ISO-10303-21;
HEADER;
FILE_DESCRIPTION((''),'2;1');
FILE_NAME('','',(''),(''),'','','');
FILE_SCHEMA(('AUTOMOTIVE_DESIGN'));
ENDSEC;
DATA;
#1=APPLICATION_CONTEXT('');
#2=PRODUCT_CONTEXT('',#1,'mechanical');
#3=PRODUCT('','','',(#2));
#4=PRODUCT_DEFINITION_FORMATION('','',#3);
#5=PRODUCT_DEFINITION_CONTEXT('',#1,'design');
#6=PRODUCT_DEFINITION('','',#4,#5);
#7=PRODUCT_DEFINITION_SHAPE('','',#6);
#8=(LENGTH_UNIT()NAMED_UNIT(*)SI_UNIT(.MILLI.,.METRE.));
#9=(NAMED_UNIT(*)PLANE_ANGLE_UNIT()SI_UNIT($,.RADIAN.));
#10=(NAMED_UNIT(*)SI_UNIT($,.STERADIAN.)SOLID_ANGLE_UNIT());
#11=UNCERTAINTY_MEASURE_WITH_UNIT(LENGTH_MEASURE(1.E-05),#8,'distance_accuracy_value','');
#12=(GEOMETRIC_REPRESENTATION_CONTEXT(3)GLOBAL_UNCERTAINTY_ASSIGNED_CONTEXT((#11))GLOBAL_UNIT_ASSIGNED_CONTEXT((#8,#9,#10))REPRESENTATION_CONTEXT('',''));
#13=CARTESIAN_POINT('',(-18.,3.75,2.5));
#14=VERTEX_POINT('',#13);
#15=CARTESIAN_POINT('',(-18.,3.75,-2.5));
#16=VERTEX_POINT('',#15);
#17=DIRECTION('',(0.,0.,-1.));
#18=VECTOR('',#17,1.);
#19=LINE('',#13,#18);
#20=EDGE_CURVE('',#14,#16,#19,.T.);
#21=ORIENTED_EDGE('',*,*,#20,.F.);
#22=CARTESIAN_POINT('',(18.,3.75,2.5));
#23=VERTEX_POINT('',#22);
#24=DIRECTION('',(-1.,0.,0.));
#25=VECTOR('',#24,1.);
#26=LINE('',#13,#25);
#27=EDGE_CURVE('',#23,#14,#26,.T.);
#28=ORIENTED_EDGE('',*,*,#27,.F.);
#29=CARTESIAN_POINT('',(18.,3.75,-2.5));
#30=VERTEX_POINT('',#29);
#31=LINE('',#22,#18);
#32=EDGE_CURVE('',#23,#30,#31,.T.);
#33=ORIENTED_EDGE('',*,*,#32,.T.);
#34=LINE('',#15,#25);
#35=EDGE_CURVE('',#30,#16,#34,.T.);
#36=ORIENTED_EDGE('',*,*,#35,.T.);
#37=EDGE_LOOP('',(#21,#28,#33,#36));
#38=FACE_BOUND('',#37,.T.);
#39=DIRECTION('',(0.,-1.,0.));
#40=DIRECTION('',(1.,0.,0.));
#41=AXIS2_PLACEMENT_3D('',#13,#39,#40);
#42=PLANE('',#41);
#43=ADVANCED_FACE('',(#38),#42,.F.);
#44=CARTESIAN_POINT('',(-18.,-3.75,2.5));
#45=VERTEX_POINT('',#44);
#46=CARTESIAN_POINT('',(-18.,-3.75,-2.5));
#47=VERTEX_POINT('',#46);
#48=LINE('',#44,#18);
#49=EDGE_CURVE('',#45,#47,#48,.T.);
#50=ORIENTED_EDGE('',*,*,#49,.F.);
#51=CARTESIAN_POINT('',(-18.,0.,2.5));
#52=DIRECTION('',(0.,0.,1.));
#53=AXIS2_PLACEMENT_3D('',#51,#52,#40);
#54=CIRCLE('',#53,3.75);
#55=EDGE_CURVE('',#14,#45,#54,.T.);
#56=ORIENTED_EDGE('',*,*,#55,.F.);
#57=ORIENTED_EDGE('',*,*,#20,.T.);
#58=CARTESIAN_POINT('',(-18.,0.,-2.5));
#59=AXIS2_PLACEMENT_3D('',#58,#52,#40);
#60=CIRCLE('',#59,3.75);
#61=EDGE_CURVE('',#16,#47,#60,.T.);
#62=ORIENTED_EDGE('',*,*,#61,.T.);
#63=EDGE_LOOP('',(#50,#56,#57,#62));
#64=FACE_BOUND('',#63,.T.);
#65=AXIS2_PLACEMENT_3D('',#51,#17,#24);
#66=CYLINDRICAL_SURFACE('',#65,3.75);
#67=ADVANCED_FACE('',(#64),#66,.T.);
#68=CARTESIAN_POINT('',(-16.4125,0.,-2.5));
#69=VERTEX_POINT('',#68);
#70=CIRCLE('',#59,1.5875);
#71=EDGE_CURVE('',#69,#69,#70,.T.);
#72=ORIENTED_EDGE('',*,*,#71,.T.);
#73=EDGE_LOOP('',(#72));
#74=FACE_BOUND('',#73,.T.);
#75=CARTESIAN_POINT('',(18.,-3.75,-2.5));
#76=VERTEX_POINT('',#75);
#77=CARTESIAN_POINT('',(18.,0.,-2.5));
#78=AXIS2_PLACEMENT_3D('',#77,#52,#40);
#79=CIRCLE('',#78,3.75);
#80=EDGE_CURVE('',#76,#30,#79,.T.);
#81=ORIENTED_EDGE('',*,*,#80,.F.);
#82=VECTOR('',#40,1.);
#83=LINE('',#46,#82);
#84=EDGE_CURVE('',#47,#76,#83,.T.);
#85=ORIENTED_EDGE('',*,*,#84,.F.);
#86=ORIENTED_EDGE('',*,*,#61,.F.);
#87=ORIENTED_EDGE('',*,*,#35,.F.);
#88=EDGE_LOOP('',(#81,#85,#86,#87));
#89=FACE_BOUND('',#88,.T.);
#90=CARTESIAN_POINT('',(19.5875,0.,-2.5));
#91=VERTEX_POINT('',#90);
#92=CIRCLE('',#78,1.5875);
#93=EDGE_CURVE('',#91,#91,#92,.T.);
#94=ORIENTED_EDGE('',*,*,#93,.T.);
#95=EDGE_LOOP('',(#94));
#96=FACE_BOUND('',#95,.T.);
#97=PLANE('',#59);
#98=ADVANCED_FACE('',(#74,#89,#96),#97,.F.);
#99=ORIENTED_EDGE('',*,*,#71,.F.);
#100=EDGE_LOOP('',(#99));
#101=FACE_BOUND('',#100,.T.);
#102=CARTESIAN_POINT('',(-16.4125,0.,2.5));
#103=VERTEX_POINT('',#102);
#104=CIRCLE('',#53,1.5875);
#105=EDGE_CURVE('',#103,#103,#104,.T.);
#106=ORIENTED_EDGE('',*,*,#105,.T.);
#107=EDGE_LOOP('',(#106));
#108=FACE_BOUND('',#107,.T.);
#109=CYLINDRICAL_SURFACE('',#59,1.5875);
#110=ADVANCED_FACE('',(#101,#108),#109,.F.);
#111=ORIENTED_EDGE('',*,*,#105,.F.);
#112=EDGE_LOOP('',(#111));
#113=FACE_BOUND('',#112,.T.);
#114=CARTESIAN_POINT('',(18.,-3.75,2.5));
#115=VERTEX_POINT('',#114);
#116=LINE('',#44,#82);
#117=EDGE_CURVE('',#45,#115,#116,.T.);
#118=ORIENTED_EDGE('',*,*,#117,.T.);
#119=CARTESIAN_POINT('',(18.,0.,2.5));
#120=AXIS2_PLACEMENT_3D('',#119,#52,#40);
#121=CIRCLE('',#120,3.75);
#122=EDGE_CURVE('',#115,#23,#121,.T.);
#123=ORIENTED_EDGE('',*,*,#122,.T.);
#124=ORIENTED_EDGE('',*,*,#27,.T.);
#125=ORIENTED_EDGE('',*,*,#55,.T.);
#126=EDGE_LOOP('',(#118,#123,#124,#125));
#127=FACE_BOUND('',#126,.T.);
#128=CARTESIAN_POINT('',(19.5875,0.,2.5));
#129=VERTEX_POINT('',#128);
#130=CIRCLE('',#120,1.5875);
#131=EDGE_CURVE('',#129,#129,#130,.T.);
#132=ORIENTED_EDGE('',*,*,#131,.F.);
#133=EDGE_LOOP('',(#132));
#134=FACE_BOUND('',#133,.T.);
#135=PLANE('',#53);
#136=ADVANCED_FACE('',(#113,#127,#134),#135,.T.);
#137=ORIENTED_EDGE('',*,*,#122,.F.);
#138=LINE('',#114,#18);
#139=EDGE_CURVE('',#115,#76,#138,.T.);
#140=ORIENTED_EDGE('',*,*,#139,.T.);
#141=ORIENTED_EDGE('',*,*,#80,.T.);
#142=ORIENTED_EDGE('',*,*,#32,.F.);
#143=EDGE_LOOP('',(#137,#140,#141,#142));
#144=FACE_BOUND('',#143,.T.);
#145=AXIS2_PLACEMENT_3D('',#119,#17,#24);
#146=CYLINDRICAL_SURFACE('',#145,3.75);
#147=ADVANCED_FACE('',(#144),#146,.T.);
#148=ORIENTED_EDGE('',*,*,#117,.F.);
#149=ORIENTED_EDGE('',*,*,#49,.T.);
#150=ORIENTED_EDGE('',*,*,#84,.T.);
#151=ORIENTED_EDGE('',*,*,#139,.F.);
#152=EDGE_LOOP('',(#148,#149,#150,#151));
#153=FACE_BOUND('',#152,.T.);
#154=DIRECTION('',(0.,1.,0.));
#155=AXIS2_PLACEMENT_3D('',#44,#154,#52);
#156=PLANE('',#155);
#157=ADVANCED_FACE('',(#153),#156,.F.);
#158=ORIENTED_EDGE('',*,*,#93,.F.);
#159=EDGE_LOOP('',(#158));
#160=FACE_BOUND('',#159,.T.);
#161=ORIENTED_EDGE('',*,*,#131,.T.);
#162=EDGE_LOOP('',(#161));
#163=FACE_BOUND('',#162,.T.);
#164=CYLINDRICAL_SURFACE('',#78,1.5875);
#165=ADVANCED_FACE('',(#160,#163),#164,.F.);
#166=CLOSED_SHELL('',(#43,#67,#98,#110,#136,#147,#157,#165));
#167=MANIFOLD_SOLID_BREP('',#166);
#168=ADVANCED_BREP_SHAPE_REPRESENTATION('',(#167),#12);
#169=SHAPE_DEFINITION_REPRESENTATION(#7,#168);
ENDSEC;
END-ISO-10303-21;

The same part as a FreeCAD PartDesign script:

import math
import FreeCAD as App
import Part
import Sketcher
Q = App.Units.Quantity

doc = App.newDocument("Part")
body = doc.addObject("PartDesign::Body", "Body")

sketch1 = body.newObject("Sketcher::SketchObject", "Sketch")
sketch1.AttachmentSupport = (doc.getObject("XY_Plane"), [""])
sketch1.MapMode = "FlatFace"
sketch1.addGeometry(Part.LineSegment(App.Vector(18, 3.75, 0), App.Vector(-18, 3.75, 0)), False)
sketch1.addGeometry(Part.ArcOfCircle(Part.Circle(App.Vector(-18, 0, 0), App.Vector(0, 0, 1), 3.75), math.radians(90), math.radians(270)), False)
sketch1.addGeometry(Part.LineSegment(App.Vector(-18, -3.75, 0), App.Vector(18, -3.75, 0)), False)
sketch1.addGeometry(Part.ArcOfCircle(Part.Circle(App.Vector(18, 0, 0), App.Vector(0, 0, 1), 3.75), math.radians(-90), math.radians(90)), False)
sketch1.addConstraint(Sketcher.Constraint("Tangent", 0, 2, 1, 1))
sketch1.addConstraint(Sketcher.Constraint("Tangent", 1, 2, 2, 1))
sketch1.addConstraint(Sketcher.Constraint("Tangent", 2, 2, 3, 1))
sketch1.addConstraint(Sketcher.Constraint("Tangent", 3, 2, 0, 1))
sketch1.addConstraint(Sketcher.Constraint("Horizontal", 0))
sketch1.addConstraint(Sketcher.Constraint("Horizontal", 2))
sketch1.addConstraint(Sketcher.Constraint("Symmetric", 1, 3, 3, 3, -1, 1))
sketch1.addConstraint(Sketcher.Constraint("DistanceX", 0, 2, 0, 1, Q("36 mm")))
sketch1.addConstraint(Sketcher.Constraint("Radius", 1, Q("3.75 mm")))
pad1 = body.newObject("PartDesign::Pad", "Pad")
pad1.Profile = sketch1
pad1.Length = 5
pad1.Midplane = True

sketch2 = body.newObject("Sketcher::SketchObject", "Sketch001")
sketch2.AttachmentSupport = (doc.getObject("XY_Plane"), [""])
sketch2.MapMode = "FlatFace"
sketch2.AttachmentOffset = App.Placement(App.Vector(0, 0, 2.5), App.Rotation())
sketch2.addGeometry(Part.Circle(App.Vector(-18, 0, 0), App.Vector(0, 0, 1), 1.5875), False)
sketch2.addGeometry(Part.Circle(App.Vector(18, 0, 0), App.Vector(0, 0, 1), 1.5875), False)
sketch2.addConstraint(Sketcher.Constraint("Equal", 0, 1))
sketch2.addConstraint(Sketcher.Constraint("Symmetric", 0, 3, 1, 3, -1, 1))
sketch2.addConstraint(Sketcher.Constraint("PointOnObject", 0, 3, -1))
sketch2.addConstraint(Sketcher.Constraint("Diameter", 0, Q("3.175 mm")))
sketch2.addConstraint(Sketcher.Constraint("DistanceX", 0, 3, -1, 1, Q("18 mm")))
pocket1 = body.newObject("PartDesign::Pocket", "Pocket")
pocket1.Profile = sketch2
pocket1.Type = "ThroughAll"

doc.recompute()
